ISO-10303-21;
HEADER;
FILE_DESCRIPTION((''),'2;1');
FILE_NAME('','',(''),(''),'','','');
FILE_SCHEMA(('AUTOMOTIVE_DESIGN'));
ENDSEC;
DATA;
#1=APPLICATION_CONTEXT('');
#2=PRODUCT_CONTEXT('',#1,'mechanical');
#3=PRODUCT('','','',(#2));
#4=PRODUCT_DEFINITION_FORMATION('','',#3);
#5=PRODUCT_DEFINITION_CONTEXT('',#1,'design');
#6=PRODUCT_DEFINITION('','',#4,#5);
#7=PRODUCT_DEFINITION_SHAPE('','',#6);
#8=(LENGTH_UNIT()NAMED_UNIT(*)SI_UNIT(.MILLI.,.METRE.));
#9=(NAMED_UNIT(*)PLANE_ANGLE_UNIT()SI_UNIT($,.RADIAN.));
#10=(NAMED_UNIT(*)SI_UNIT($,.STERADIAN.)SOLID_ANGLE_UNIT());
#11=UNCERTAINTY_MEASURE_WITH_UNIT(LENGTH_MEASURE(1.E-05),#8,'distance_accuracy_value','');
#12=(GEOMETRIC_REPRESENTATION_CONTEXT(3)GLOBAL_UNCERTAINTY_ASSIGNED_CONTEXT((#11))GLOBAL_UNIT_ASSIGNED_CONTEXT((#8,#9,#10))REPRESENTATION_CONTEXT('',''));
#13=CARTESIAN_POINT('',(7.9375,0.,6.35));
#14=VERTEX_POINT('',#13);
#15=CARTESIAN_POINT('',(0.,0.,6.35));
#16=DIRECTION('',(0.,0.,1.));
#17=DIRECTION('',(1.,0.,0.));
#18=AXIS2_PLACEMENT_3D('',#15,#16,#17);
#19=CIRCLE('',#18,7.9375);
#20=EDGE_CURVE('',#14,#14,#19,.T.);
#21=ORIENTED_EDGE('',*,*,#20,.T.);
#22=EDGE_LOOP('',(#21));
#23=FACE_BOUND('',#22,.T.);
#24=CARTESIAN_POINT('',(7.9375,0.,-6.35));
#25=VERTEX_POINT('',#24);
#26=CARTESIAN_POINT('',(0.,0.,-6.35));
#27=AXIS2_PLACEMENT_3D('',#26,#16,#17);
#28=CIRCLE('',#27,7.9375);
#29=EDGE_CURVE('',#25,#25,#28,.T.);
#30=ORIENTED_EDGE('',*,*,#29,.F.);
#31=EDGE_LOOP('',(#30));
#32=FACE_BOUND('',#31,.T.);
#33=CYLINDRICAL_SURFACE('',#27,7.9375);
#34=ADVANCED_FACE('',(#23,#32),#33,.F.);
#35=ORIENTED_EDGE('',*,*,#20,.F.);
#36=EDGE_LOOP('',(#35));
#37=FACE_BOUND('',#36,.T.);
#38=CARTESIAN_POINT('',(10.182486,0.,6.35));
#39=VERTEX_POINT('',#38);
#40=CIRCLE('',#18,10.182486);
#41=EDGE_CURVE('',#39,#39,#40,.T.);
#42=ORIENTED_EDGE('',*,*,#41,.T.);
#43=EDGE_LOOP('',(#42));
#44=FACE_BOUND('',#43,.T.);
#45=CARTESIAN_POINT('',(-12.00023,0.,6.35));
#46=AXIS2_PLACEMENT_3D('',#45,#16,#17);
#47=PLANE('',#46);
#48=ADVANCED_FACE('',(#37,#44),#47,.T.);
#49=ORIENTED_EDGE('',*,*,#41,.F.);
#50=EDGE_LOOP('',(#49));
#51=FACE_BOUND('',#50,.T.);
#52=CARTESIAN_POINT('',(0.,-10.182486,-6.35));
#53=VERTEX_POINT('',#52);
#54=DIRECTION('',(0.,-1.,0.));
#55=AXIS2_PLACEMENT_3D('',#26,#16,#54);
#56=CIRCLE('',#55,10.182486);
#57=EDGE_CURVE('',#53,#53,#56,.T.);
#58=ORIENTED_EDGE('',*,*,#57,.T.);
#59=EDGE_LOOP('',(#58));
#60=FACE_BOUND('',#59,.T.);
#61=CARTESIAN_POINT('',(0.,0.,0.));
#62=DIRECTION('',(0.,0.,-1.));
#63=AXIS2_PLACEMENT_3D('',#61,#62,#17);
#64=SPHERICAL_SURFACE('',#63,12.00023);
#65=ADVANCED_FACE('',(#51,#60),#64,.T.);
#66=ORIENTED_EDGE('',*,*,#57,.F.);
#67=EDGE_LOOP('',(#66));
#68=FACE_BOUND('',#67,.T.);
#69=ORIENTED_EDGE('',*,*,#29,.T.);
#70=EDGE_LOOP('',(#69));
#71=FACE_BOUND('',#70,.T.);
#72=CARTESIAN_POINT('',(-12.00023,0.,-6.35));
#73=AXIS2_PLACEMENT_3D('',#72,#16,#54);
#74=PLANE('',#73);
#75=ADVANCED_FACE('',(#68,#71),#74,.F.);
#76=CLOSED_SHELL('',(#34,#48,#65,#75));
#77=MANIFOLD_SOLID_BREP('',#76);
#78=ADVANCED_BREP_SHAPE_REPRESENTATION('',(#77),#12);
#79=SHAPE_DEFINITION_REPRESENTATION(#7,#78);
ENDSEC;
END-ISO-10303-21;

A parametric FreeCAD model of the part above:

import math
import FreeCAD as App
import Part
import Sketcher

doc = App.newDocument("Part")
body = doc.addObject("PartDesign::Body", "Body")

# Sketch on XZ plane
sketch1 = doc.addObject("Sketcher::SketchObject", "Sketch")
body.addObject(sketch1)
sketch1.AttachmentSupport = (doc.XZ_Plane, [""])
sketch1.MapMode = "FlatFace"
sketch1.addGeometry(Part.LineSegment(App.Vector(0, -12, 0), App.Vector(0, 12, 0)), False)
sketch1.addGeometry(Part.ArcOfCircle(Part.Circle(App.Vector(0, 0, 0), App.Vector(0, 0, 1), 12), math.radians(-90), math.radians(90)), False)
sketch1.addConstraint(Sketcher.Constraint("Coincident", 0, 1, 1, 1))
sketch1.addConstraint(Sketcher.Constraint("Coincident", 1, 2, 0, 2))
sketch1.addConstraint(Sketcher.Constraint("Vertical", 0))
sketch1.addConstraint(Sketcher.Constraint("Coincident", 1, 3, -1, 1))
sketch1.addConstraint(Sketcher.Constraint("PointOnObject", 0, 1, -2))
sketch1.addConstraint(Sketcher.Constraint("Radius", 1, 12.00023))
revolution = doc.addObject("PartDesign::Revolution", "Revolution")
body.addObject(revolution)
revolution.Profile = sketch1
revolution.ReferenceAxis = (sketch1, ["V_Axis"])
revolution.Angle = 360

# Sketch on YZ plane
sketch2 = doc.addObject("Sketcher::SketchObject", "Sketch001")
body.addObject(sketch2)
sketch2.AttachmentSupport = (doc.YZ_Plane, [""])
sketch2.MapMode = "FlatFace"
sketch2.addGeometry(Part.LineSegment(App.Vector(-10, 6, 0), App.Vector(10, 6, 0)), False)
sketch2.addGeometry(Part.ArcOfCircle(Part.Circle(App.Vector(0, 0, 0), App.Vector(0, 0, 1), 12), math.radians(32), math.radians(148)), False)
sketch2.addGeometry(Part.ArcOfCircle(Part.Circle(App.Vector(0, 0, 0), App.Vector(0, 0, 1), 12), math.radians(-148), math.radians(-32)), False)
sketch2.addGeometry(Part.LineSegment(App.Vector(10, -6, 0), App.Vector(-10, -6, 0)), False)
sketch2.addConstraint(Sketcher.Constraint("Coincident", 0, 1, 1, 2))
sketch2.addConstraint(Sketcher.Constraint("Coincident", 1, 1, 0, 2))
sketch2.addConstraint(Sketcher.Constraint("Coincident", 2, 1, 3, 2))
sketch2.addConstraint(Sketcher.Constraint("Coincident", 3, 1, 2, 2))
sketch2.addConstraint(Sketcher.Constraint("Horizontal", 0))
sketch2.addConstraint(Sketcher.Constraint("Horizontal", 3))
sketch2.addConstraint(Sketcher.Constraint("Coincident", 1, 3, -1, 1))
sketch2.addConstraint(Sketcher.Constraint("Coincident", 2, 3, -1, 1))
sketch2.addConstraint(Sketcher.Constraint("Equal", 1, 2))
sketch2.addConstraint(Sketcher.Constraint("Vertical", 0, 1, 2, 1))
sketch2.addConstraint(Sketcher.Constraint("DistanceY", 2, 1, 0, 1, 12.7))
sketch2.addConstraint(Sketcher.Constraint("Radius", 1, 12.00023))
pocket1 = doc.addObject("PartDesign::Pocket", "Pocket")
body.addObject(pocket1)
pocket1.Profile = sketch2
pocket1.Type = "ThroughAll"
pocket1.Midplane = True

# Sketch on XY plane
sketch3 = doc.addObject("Sketcher::SketchObject", "Sketch002")
body.addObject(sketch3)
sketch3.AttachmentSupport = (doc.XY_Plane, [""])
sketch3.MapMode = "FlatFace"
sketch3.AttachmentOffset = App.Placement(App.Vector(0, 0, 6.35), App.Rotation())
sketch3.addGeometry(Part.Circle(App.Vector(0, 0, 0), App.Vector(0, 0, 1), 8), False)
sketch3.addConstraint(Sketcher.Constraint("Coincident", 0, 3, -1, 1))
sketch3.addConstraint(Sketcher.Constraint("Diameter", 0, 15.875))
pocket2 = doc.addObject("PartDesign::Pocket", "Pocket001")
body.addObject(pocket2)
pocket2.Profile = sketch3
pocket2.Type = "ThroughAll"

doc.recompute()
